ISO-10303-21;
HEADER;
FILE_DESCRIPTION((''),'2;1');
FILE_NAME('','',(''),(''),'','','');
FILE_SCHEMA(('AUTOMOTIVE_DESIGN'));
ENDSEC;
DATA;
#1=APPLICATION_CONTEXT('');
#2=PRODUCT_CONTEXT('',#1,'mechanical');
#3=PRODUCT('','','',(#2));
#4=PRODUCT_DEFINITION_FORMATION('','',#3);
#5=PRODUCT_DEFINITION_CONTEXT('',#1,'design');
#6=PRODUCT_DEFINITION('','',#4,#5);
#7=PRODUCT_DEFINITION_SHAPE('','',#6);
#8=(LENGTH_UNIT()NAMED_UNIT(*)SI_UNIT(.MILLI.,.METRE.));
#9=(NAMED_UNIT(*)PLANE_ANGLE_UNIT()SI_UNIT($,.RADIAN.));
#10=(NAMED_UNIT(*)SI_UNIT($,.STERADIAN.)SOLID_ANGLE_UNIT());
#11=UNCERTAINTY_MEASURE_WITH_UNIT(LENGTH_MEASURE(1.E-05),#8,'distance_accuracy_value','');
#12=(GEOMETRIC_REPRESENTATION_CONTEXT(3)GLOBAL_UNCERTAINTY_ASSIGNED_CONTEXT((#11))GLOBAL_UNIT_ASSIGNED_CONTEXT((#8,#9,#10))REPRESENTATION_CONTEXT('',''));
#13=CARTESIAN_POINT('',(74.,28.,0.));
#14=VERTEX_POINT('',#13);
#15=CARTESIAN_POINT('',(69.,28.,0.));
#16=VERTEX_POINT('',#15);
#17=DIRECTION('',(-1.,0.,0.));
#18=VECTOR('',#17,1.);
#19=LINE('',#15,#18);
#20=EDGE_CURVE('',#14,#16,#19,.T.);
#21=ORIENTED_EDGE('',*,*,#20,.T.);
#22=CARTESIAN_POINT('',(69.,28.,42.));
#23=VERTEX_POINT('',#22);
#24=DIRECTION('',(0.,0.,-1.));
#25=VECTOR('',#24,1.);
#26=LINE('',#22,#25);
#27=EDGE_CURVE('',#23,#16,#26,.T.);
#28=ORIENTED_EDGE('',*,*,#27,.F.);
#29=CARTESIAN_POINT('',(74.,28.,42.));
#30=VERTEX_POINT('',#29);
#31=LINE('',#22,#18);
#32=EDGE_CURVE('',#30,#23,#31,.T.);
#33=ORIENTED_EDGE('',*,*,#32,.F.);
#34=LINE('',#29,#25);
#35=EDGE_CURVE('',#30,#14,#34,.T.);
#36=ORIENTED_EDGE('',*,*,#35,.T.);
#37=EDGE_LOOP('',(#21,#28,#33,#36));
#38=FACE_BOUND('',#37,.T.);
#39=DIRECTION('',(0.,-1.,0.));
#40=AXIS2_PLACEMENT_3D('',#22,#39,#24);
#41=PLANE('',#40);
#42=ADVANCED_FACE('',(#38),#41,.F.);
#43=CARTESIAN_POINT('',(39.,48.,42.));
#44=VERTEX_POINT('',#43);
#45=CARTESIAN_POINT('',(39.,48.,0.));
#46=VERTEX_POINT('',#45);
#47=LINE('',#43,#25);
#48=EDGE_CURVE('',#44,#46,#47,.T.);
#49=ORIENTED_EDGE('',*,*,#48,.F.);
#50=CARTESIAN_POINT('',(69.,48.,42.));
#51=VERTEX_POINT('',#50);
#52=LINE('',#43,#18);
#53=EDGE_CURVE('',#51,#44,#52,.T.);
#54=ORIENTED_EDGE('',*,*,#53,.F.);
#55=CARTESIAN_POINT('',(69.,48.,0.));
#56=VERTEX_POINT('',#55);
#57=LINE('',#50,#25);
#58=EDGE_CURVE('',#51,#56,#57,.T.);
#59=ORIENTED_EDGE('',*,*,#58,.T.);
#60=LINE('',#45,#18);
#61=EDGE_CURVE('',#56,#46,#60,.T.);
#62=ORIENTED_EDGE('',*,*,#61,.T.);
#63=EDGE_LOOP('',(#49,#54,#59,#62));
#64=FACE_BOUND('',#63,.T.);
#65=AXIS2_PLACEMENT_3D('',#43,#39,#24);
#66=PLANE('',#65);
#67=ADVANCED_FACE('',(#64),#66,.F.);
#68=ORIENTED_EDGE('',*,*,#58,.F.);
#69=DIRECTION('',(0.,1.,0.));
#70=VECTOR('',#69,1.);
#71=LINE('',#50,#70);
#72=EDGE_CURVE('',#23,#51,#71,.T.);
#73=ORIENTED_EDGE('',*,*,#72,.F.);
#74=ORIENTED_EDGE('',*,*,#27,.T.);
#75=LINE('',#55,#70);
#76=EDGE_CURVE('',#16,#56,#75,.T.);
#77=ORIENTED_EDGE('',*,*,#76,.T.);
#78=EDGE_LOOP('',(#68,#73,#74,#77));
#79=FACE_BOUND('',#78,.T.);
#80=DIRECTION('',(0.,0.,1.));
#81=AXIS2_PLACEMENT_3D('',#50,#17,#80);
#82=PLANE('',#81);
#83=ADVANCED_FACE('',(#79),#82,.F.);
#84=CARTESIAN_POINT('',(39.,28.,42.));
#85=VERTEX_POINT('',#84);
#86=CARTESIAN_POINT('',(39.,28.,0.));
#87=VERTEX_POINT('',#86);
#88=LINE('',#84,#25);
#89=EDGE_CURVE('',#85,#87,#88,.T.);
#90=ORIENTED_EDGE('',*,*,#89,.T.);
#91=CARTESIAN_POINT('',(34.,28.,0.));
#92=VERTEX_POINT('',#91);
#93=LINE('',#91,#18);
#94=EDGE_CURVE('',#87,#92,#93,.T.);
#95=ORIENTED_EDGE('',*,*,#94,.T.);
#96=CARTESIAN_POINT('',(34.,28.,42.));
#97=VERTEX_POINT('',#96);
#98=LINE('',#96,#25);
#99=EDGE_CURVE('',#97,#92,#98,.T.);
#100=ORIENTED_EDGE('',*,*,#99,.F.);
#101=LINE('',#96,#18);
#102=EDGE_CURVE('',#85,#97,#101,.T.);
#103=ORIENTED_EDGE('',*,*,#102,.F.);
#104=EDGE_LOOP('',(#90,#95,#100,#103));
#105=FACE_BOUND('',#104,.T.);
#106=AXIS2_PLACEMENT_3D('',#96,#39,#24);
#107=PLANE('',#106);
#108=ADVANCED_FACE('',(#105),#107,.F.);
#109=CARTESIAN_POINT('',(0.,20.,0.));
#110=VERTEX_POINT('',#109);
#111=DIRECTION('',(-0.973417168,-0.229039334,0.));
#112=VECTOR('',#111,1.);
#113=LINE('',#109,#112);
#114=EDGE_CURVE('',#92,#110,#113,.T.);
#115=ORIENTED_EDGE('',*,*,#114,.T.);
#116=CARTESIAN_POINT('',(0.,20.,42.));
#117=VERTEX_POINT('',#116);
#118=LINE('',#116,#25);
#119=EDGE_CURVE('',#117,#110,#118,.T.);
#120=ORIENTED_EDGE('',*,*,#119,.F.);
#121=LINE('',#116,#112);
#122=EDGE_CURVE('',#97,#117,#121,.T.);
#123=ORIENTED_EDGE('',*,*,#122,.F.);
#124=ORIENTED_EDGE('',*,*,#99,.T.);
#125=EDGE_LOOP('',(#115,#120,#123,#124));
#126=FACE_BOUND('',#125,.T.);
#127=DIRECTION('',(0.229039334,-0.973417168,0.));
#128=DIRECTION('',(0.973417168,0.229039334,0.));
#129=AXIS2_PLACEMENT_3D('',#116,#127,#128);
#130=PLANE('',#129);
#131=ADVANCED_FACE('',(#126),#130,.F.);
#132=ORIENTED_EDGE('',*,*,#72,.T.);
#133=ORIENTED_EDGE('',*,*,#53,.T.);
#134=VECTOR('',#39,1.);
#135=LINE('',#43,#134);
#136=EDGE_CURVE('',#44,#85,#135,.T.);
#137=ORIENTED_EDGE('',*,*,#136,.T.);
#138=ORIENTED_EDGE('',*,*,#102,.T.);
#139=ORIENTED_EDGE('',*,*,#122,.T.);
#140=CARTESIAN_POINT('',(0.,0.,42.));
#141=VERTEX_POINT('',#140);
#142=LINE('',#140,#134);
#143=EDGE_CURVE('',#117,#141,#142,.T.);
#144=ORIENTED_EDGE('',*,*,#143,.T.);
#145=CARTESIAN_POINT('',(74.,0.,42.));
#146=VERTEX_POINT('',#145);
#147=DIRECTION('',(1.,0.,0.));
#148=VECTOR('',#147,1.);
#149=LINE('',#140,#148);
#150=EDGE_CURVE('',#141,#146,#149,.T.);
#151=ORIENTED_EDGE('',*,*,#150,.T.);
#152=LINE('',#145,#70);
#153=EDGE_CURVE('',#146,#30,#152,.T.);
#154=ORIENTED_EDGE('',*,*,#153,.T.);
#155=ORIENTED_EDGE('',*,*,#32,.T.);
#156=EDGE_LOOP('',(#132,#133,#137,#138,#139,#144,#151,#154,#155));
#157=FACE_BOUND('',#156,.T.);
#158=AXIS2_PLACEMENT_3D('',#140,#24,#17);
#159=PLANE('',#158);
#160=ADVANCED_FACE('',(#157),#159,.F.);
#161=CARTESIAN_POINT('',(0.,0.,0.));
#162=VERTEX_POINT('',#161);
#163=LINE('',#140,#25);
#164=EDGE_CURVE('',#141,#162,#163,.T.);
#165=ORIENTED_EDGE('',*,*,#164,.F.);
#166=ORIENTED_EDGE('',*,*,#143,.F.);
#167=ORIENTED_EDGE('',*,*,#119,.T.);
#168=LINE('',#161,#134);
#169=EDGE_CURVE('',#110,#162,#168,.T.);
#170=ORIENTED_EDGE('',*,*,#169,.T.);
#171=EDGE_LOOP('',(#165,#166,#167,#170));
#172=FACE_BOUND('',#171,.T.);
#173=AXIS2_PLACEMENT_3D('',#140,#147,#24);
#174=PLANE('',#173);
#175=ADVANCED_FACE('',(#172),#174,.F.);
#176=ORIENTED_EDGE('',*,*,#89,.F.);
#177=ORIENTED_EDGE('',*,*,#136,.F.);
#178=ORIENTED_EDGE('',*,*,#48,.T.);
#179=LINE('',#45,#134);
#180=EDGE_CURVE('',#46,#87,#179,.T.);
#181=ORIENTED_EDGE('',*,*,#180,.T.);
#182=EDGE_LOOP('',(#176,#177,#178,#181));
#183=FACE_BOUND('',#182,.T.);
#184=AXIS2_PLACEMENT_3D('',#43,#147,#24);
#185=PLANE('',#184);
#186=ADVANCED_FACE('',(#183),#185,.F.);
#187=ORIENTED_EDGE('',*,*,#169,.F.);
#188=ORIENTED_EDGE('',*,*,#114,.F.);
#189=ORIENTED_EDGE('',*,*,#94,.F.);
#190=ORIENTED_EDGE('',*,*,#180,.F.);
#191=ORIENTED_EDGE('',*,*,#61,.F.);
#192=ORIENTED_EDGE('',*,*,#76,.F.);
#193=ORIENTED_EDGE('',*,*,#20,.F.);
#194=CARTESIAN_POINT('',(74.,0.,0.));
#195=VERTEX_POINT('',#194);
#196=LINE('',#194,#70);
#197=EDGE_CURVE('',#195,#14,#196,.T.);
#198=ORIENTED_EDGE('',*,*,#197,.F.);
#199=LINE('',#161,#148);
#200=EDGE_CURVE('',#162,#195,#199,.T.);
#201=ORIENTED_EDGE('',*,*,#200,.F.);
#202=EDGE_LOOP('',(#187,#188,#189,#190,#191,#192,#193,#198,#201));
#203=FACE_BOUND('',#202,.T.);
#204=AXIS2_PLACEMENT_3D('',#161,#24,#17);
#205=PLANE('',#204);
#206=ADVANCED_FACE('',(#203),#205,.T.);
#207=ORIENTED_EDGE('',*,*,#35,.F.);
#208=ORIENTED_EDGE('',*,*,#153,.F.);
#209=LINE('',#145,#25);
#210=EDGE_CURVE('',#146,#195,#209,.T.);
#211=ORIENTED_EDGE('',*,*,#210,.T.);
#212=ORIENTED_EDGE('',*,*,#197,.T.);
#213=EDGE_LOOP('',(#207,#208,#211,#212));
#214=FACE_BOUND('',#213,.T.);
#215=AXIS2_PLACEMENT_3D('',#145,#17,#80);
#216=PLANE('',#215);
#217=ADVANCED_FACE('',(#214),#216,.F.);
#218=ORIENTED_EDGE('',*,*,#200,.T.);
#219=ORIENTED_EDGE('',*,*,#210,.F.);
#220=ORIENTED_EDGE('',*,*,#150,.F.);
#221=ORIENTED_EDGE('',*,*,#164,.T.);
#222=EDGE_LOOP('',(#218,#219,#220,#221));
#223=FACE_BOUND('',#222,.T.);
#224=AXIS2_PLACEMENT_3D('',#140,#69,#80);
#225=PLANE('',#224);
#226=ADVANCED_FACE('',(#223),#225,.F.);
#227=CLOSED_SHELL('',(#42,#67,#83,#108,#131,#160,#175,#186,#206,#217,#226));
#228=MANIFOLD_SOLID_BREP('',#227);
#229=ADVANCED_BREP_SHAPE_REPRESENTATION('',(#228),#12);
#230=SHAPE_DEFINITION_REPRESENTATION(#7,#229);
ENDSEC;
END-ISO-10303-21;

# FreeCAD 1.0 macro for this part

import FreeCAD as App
import Part
import Sketcher

V = App.Vector
Q = App.Units.Quantity

doc = App.newDocument("Part")
params = doc.addObject("Spreadsheet::Sheet", "Params")
for row, (alias, value) in enumerate([
    ("sketch1_width", "74 mm"),
    ("sketch1_width2", "5 mm"),
    ("sketch1_width3", "30 mm"),
    ("sketch1_height", "20 mm"),
    ("sketch1_height2", "28 mm"),
    ("pad1_length", "42 mm"),
], start=1):
    params.set(f"A{row}", alias)
    params.set(f"B{row}", "=" + value)
    params.setAlias(f"B{row}", alias)

body = doc.addObject("PartDesign::Body", "Body")

sketch1 = doc.addObject("Sketcher::SketchObject", "Sketch")
body.addObject(sketch1)
sketch1.AttachmentSupport = (doc.XY_Plane, [""])
sketch1.MapMode = "FlatFace"
sketch1.addGeometry([
    Part.LineSegment(V(34, 28, 0), V(0, 20, 0)),
    Part.LineSegment(V(0, 20, 0), V(0, 0, 0)),
    Part.LineSegment(V(0, 0, 0), V(74, 0, 0)),
    Part.LineSegment(V(74, 0, 0), V(74, 28, 0)),
    Part.LineSegment(V(74, 28, 0), V(69, 28, 0)),
    Part.LineSegment(V(69, 28, 0), V(69, 48, 0)),
    Part.LineSegment(V(69, 48, 0), V(39, 48, 0)),
    Part.LineSegment(V(39, 48, 0), V(39, 28, 0)),
    Part.LineSegment(V(39, 28, 0), V(34, 28, 0)),
], False)
sketch1.addConstraint([
    Sketcher.Constraint("Coincident", 0, 2, 1, 1),
    Sketcher.Constraint("Coincident", 1, 2, 2, 1),
    Sketcher.Constraint("Coincident", 2, 2, 3, 1),
    Sketcher.Constraint("Coincident", 3, 2, 4, 1),
    Sketcher.Constraint("Coincident", 4, 2, 5, 1),
    Sketcher.Constraint("Coincident", 5, 2, 6, 1),
    Sketcher.Constraint("Coincident", 6, 2, 7, 1),
    Sketcher.Constraint("Coincident", 7, 2, 8, 1),
    Sketcher.Constraint("Coincident", 8, 2, 0, 1),
    Sketcher.Constraint("Vertical", 1),
    Sketcher.Constraint("Horizontal", 2),
    Sketcher.Constraint("Vertical", 3),
    Sketcher.Constraint("Horizontal", 4),
    Sketcher.Constraint("Vertical", 5),
    Sketcher.Constraint("Horizontal", 6),
    Sketcher.Constraint("Vertical", 7),
    Sketcher.Constraint("Horizontal", 8),
    Sketcher.Constraint("Coincident", 1, 2, -1, 1),
    Sketcher.Constraint("Horizontal", 4, 2, 7, 2),
    Sketcher.Constraint("Equal", 4, 8),
    Sketcher.Constraint("Equal", 1, 5),
    Sketcher.Constraint("DistanceX", 2, 1, 2, 2, Q("74 mm")),
    Sketcher.Constraint("DistanceX", 4, 2, 4, 1, Q("5 mm")),
    Sketcher.Constraint("DistanceX", 6, 2, 6, 1, Q("30 mm")),
    Sketcher.Constraint("DistanceY", 1, 2, 1, 1, Q("20 mm")),
    Sketcher.Constraint("DistanceY", 3, 1, 3, 2, Q("28 mm")),
])
sketch1.setExpression("Constraints[21]", "Params.sketch1_width")
sketch1.setExpression("Constraints[22]", "Params.sketch1_width2")
sketch1.setExpression("Constraints[23]", "Params.sketch1_width3")
sketch1.setExpression("Constraints[24]", "Params.sketch1_height")
sketch1.setExpression("Constraints[25]", "Params.sketch1_height2")
pad1 = doc.addObject("PartDesign::Pad", "Pad")
body.addObject(pad1)
pad1.Profile = sketch1
pad1.setExpression("Length", "Params.pad1_length")

doc.recompute()
